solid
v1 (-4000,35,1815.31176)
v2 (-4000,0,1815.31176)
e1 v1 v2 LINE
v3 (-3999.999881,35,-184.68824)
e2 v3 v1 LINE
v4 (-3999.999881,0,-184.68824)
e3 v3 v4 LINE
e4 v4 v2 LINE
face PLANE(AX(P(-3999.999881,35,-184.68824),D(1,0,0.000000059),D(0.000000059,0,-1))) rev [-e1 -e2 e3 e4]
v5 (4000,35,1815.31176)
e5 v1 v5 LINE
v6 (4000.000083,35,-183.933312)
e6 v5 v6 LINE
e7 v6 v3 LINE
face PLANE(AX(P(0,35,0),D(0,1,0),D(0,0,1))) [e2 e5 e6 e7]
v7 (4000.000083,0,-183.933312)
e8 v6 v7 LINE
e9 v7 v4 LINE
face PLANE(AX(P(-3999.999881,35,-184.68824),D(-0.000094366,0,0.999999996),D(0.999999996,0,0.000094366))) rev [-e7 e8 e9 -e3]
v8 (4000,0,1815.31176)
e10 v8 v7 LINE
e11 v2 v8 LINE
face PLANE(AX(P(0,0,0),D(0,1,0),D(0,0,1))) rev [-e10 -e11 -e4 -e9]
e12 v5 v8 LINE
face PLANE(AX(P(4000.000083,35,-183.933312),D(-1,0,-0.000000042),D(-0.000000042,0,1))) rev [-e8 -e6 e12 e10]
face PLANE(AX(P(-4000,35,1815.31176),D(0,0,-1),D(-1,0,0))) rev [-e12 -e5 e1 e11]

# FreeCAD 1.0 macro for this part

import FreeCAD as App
import Part
import Sketcher

V = App.Vector
Q = App.Units.Quantity

doc = App.newDocument("Part")
body = doc.addObject("PartDesign::Body", "Body")

# Sketch on XZ plane
sketch1 = body.newObject("Sketcher::SketchObject", "Sketch")
sketch1.AttachmentSupport = (doc.getObject("XZ_Plane"), [""])
sketch1.MapMode = "FlatFace"
sketch1.addGeometry(Part.LineSegment(V(4000.000083, -183.933312, 0), V(-3999.999881, -184.68824, 0)), False)
sketch1.addGeometry(Part.LineSegment(V(-3999.999881, -184.68824, 0), V(-4000, 1815.31176, 0)), False)
sketch1.addGeometry(Part.LineSegment(V(-4000, 1815.31176, 0), V(4000, 1815.31176, 0)), False)
sketch1.addGeometry(Part.LineSegment(V(4000, 1815.31176, 0), V(4000.000083, -183.933312, 0)), False)
sketch1.addConstraint(Sketcher.Constraint("Coincident", 0, 2, 1, 1))
sketch1.addConstraint(Sketcher.Constraint("Coincident", 1, 2, 2, 1))
sketch1.addConstraint(Sketcher.Constraint("Coincident", 2, 2, 3, 1))
sketch1.addConstraint(Sketcher.Constraint("Coincident", 3, 2, 0, 1))
sketch1.addConstraint(Sketcher.Constraint("Horizontal", 2))
sketch1.addConstraint(Sketcher.Constraint("Parallel", 1, 3))
sketch1.addConstraint(Sketcher.Constraint("DistanceX", 2, 1, 2, 2, 8000.0))
sketch1.addConstraint(Sketcher.Constraint("Angle", 1, Q("90.000003 deg")))
sketch1.addConstraint(Sketcher.Constraint("Distance", 1, 2000.0))
sketch1.addConstraint(Sketcher.Constraint("DistanceX", 1, 2, -1, 1, 4000.0))
sketch1.addConstraint(Sketcher.Constraint("DistanceY", 0, 2, -1, 1, 184.68824))
sketch1.addConstraint(Sketcher.Constraint("Distance", 3, 1999.245073))
pad1 = body.newObject("PartDesign::Pad", "Pad")
pad1.Profile = sketch1
pad1.Length = 35
pad1.Reversed = True

doc.recompute()
